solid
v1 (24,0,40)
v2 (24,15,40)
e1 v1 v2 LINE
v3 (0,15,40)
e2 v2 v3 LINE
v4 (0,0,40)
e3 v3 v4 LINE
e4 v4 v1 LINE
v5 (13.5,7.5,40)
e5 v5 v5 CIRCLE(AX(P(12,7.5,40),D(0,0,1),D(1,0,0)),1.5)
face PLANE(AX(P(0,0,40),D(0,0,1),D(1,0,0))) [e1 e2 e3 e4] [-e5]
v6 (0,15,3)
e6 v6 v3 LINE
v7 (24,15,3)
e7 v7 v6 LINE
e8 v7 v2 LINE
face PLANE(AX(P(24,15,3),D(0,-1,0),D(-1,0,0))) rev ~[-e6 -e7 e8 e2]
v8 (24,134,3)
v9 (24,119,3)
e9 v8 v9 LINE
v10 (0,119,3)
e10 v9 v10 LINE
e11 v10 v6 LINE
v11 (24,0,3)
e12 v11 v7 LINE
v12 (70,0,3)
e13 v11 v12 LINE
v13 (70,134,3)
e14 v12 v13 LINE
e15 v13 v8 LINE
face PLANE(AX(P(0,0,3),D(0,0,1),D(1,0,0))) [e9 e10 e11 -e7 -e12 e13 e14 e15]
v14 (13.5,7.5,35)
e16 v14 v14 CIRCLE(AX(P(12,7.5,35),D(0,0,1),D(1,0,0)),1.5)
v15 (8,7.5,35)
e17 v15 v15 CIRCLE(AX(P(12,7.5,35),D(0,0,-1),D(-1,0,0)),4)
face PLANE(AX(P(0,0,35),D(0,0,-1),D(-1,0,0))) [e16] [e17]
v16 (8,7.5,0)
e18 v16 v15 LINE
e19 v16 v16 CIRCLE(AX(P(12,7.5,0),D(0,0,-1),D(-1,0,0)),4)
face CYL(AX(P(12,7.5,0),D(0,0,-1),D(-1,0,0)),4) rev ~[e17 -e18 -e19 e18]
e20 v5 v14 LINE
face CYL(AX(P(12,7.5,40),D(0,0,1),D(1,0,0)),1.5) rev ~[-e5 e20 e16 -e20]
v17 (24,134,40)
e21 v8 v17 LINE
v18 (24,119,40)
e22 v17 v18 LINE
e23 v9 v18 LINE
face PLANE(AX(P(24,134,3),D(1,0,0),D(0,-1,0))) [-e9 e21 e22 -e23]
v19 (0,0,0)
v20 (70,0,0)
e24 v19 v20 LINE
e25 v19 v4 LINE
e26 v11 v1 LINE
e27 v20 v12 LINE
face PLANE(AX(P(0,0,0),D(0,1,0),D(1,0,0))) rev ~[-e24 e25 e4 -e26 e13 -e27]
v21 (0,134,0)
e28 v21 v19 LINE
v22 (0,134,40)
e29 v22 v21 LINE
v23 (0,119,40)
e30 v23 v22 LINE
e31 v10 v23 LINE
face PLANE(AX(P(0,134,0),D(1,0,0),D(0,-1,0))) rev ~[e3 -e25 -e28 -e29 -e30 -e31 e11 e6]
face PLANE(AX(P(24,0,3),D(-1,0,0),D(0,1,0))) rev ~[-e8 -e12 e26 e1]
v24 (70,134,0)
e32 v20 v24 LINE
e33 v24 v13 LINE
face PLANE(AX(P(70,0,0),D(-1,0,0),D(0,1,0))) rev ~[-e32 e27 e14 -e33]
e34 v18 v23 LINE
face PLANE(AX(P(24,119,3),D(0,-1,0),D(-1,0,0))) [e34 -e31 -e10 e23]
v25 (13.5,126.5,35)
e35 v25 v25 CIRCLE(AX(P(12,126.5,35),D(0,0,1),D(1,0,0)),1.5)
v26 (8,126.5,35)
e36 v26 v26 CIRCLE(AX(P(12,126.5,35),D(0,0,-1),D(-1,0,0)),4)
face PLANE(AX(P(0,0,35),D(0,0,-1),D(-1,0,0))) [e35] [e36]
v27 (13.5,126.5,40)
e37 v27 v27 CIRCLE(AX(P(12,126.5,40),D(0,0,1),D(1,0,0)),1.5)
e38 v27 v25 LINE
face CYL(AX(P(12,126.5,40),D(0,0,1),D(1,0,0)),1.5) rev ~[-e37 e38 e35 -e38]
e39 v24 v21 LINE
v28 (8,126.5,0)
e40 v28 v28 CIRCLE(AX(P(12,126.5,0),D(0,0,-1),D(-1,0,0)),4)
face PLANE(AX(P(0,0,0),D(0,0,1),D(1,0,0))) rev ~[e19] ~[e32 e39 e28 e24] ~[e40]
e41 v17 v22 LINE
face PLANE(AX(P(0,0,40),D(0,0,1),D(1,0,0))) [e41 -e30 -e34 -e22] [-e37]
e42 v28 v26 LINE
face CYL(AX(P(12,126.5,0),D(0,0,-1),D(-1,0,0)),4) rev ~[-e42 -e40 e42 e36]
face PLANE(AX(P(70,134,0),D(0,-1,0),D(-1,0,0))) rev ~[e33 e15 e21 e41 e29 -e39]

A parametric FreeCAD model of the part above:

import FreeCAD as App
import Part
import Sketcher


def add_polygon(sketch, points):
    """Adds a closed chain of lines whose ends are joined by coincident constraints."""
    first, n = sketch.GeometryCount, len(points)
    for a, b in zip(points, points[1:] + points[:1]):
        sketch.addGeometry(Part.LineSegment(App.Vector(*a, 0), App.Vector(*b, 0)), False)
    for i in range(n):
        sketch.addConstraint(Sketcher.Constraint("Coincident", first + i, 2, first + (i + 1) % n, 1))

doc = App.newDocument("Part")
body = doc.addObject("PartDesign::Body", "Body")

sketch1 = body.newObject("Sketcher::SketchObject", "Sketch")
sketch1.AttachmentSupport = (doc.getObject("XY_Plane"), [""])
sketch1.MapMode = "FlatFace"
add_polygon(sketch1, [(0, 134), (0, 0), (70, 0), (70, 134)])
sketch1.addConstraint(Sketcher.Constraint("Vertical", 0))
sketch1.addConstraint(Sketcher.Constraint("Horizontal", 1))
sketch1.addConstraint(Sketcher.Constraint("Vertical", 2))
sketch1.addConstraint(Sketcher.Constraint("Horizontal", 3))
sketch1.addConstraint(Sketcher.Constraint("Coincident", 0, 2, -1, 1))
sketch1.addConstraint(Sketcher.Constraint("DistanceX", 1, 1, 1, 2, 70.0))
sketch1.addConstraint(Sketcher.Constraint("DistanceY", 0, 2, 0, 1, 134.0))
pad1 = body.newObject("PartDesign::Pad", "Pad")
pad1.Profile = sketch1
pad1.Length = 3

sketch2 = body.newObject("Sketcher::SketchObject", "Sketch001")
sketch2.AttachmentSupport = (doc.getObject("XY_Plane"), [""])
sketch2.MapMode = "FlatFace"
sketch2.AttachmentOffset = App.Placement(App.Vector(0, 0, 3), App.Rotation())
add_polygon(sketch2, [(24, 119), (24, 134), (0, 134), (0, 119)])
add_polygon(sketch2, [(0, 15), (0, 0), (24, 0), (24, 15)])
sketch2.addConstraint(Sketcher.Constraint("Vertical", 0))
sketch2.addConstraint(Sketcher.Constraint("Horizontal", 1))
sketch2.addConstraint(Sketcher.Constraint("Vertical", 2))
sketch2.addConstraint(Sketcher.Constraint("Horizontal", 3))
sketch2.addConstraint(Sketcher.Constraint("Vertical", 4))
sketch2.addConstraint(Sketcher.Constraint("Horizontal", 5))
sketch2.addConstraint(Sketcher.Constraint("Vertical", 6))
sketch2.addConstraint(Sketcher.Constraint("Horizontal", 7))
sketch2.addConstraint(Sketcher.Constraint("Coincident", 4, 2, -1, 1))
sketch2.addConstraint(Sketcher.Constraint("PointOnObject", 1, 2, -2))
sketch2.addConstraint(Sketcher.Constraint("Vertical", 3, 2, 5, 2))
sketch2.addConstraint(Sketcher.Constraint("Equal", 2, 4))
sketch2.addConstraint(Sketcher.Constraint("DistanceX", 1, 2, 1, 1, 24.0))
sketch2.addConstraint(Sketcher.Constraint("DistanceY", 0, 1, 0, 2, 15.0))
sketch2.addConstraint(Sketcher.Constraint("DistanceY", -1, 1, 0, 2, 134.0))
pad2 = body.newObject("PartDesign::Pad", "Pad001")
pad2.Profile = sketch2
pad2.Length = 37

sketch3 = body.newObject("Sketcher::SketchObject", "Sketch002")
sketch3.AttachmentSupport = (doc.getObject("XY_Plane"), [""])
sketch3.MapMode = "FlatFace"
sketch3.AttachmentOffset = App.Placement(App.Vector(0, 0, 40), App.Rotation())
sketch3.addGeometry(Part.Circle(App.Vector(12, 126.5, 0), App.Vector(0, 0, 1), 1.5), False)
sketch3.addGeometry(Part.Circle(App.Vector(12, 7.5, 0), App.Vector(0, 0, 1), 1.5), False)
sketch3.addConstraint(Sketcher.Constraint("Equal", 0, 1))
sketch3.addConstraint(Sketcher.Constraint("Vertical", 0, 3, 1, 3))
sketch3.addConstraint(Sketcher.Constraint("Diameter", 0, 3.0))
sketch3.addConstraint(Sketcher.Constraint("DistanceX", -1, 1, 0, 3, 12.0))
sketch3.addConstraint(Sketcher.Constraint("DistanceY", 1, 3, 0, 3, 119.0))
sketch3.addConstraint(Sketcher.Constraint("DistanceY", -1, 1, 0, 3, 126.5))
pocket1 = body.newObject("PartDesign::Pocket", "Pocket")
pocket1.Profile = sketch3
pocket1.Type = "ThroughAll"

sketch4 = body.newObject("Sketcher::SketchObject", "Sketch003")
sketch4.AttachmentSupport = (doc.getObject("XY_Plane"), [""])
sketch4.MapMode = "FlatFace"
sketch4.addGeometry(Part.Circle(App.Vector(12, 126.5, 0), App.Vector(0, 0, 1), 4), False)
sketch4.addGeometry(Part.Circle(App.Vector(12, 7.5, 0), App.Vector(0, 0, 1), 4), False)
sketch4.addConstraint(Sketcher.Constraint("Equal", 0, 1))
sketch4.addConstraint(Sketcher.Constraint("Vertical", 0, 3, 1, 3))
sketch4.addConstraint(Sketcher.Constraint("Diameter", 0, 8.0))
sketch4.addConstraint(Sketcher.Constraint("DistanceX", -1, 1, 0, 3, 12.0))
sketch4.addConstraint(Sketcher.Constraint("DistanceY", 1, 3, 0, 3, 119.0))
sketch4.addConstraint(Sketcher.Constraint("DistanceY", -1, 1, 0, 3, 126.5))
pocket2 = body.newObject("PartDesign::Pocket", "Pocket001")
pocket2.Profile = sketch4
pocket2.Length = 35
pocket2.Reversed = True

doc.recompute()
